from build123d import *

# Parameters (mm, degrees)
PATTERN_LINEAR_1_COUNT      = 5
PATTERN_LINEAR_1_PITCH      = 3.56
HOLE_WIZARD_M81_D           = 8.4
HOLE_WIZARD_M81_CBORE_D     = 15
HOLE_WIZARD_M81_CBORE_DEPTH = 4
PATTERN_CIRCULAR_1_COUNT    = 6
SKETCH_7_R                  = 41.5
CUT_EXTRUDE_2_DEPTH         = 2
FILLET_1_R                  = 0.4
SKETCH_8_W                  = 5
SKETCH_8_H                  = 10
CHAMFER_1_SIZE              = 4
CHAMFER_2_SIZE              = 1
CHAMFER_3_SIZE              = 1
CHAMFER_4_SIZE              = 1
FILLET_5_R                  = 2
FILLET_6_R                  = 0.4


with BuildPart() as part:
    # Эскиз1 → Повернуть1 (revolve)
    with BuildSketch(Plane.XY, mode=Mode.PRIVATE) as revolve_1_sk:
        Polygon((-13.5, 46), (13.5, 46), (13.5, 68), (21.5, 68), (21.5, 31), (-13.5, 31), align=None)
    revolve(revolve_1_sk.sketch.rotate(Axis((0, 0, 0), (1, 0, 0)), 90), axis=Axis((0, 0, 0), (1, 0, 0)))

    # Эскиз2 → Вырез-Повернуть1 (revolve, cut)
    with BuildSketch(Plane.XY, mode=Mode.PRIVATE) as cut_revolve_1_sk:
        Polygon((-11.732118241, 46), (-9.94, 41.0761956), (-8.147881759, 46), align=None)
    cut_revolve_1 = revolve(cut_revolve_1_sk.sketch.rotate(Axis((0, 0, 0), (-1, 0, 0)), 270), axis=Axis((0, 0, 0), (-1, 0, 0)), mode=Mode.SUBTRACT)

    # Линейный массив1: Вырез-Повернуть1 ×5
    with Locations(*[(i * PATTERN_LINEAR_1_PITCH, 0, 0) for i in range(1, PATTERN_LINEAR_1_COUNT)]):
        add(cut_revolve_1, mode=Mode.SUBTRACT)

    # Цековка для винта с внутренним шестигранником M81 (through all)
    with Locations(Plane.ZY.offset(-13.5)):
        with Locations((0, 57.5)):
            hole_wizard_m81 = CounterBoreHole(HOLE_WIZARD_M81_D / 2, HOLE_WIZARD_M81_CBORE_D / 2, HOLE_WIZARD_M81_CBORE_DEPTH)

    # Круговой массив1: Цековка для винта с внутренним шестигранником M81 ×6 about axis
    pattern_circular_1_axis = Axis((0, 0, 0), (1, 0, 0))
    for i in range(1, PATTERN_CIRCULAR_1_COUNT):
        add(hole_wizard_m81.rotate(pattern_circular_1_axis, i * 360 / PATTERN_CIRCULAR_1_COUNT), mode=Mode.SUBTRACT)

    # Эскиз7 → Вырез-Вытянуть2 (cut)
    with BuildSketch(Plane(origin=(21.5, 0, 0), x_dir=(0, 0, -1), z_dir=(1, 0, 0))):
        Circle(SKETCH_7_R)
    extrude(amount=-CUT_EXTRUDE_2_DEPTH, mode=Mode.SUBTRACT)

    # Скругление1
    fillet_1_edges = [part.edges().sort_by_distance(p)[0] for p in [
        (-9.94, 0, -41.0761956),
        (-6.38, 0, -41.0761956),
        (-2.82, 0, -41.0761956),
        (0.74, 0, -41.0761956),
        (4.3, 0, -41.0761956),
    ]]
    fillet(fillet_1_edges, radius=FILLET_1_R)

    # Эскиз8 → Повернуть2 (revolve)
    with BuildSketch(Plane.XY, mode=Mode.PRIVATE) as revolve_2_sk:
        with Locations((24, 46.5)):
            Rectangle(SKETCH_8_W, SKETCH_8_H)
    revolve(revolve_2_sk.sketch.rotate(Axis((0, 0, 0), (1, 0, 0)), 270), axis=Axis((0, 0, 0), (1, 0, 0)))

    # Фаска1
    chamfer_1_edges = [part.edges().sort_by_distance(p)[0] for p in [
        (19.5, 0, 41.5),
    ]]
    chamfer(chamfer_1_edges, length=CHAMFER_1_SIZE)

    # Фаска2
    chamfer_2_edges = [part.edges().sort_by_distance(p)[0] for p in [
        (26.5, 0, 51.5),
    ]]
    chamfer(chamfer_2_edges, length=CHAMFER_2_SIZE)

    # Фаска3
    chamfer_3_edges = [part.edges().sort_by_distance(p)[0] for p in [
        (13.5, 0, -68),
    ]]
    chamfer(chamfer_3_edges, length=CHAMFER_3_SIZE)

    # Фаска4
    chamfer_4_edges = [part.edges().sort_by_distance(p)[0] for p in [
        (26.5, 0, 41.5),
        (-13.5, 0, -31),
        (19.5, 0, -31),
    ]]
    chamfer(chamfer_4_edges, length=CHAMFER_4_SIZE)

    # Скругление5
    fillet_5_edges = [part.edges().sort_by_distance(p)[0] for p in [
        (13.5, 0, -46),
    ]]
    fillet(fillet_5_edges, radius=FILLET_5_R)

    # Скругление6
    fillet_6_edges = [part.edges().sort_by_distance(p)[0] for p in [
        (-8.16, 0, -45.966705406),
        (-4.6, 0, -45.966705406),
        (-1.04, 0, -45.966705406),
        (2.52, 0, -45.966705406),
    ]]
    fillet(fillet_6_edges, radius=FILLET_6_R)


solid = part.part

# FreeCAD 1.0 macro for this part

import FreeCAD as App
import Part
import Sketcher
from FreeCAD import Vector
Q = App.Units.Quantity


def edges_at(feature, points):
    """Names of the edges that pass closest to the given points."""
    edges = feature.Shape.Edges
    near = lambda p: min(range(len(edges)), key=lambda i: edges[i].distToShape(Part.Vertex(*p))[0])
    return sorted({f"Edge{near(p) + 1}" for p in points})

doc = App.newDocument("Part")
body = doc.addObject("PartDesign::Body", "Body")

sketch1 = body.newObject("Sketcher::SketchObject", "Sketch")
sketch1.AttachmentSupport = (doc.getObject("XY_Plane"), [""])
sketch1.MapMode = "FlatFace"
sketch1.addGeometry(Part.LineSegment(Vector(13.5, 46, 0), Vector(-13.5, 46, 0)), False)
sketch1.addGeometry(Part.LineSegment(Vector(-13.5, 46, 0), Vector(-13.5, 31, 0)), False)
sketch1.addGeometry(Part.LineSegment(Vector(-13.5, 31, 0), Vector(21.5, 31, 0)), False)
sketch1.addGeometry(Part.LineSegment(Vector(21.5, 31, 0), Vector(21.5, 68, 0)), False)
sketch1.addGeometry(Part.LineSegment(Vector(21.5, 68, 0), Vector(13.5, 68, 0)), False)
sketch1.addGeometry(Part.LineSegment(Vector(13.5, 68, 0), Vector(13.5, 46, 0)), False)
sketch1.addConstraint(Sketcher.Constraint("Coincident", 0, 2, 1, 1))
sketch1.addConstraint(Sketcher.Constraint("Coincident", 1, 2, 2, 1))
sketch1.addConstraint(Sketcher.Constraint("Coincident", 2, 2, 3, 1))
sketch1.addConstraint(Sketcher.Constraint("Coincident", 3, 2, 4, 1))
sketch1.addConstraint(Sketcher.Constraint("Coincident", 4, 2, 5, 1))
sketch1.addConstraint(Sketcher.Constraint("Coincident", 5, 2, 0, 1))
sketch1.addConstraint(Sketcher.Constraint("Horizontal", 0))
sketch1.addConstraint(Sketcher.Constraint("Vertical", 1))
sketch1.addConstraint(Sketcher.Constraint("Horizontal", 2))
sketch1.addConstraint(Sketcher.Constraint("Vertical", 3))
sketch1.addConstraint(Sketcher.Constraint("Horizontal", 4))
sketch1.addConstraint(Sketcher.Constraint("Vertical", 5))
sketch1.addConstraint(Sketcher.Constraint("DistanceX", 0, 2, 0, 1, Q("27 mm")))
sketch1.addConstraint(Sketcher.Constraint("DistanceX", 2, 1, 2, 2, Q("35 mm")))
sketch1.addConstraint(Sketcher.Constraint("DistanceY", 1, 2, 1, 1, Q("15 mm")))
sketch1.addConstraint(Sketcher.Constraint("DistanceY", 3, 1, 3, 2, Q("37 mm")))
sketch1.addConstraint(Sketcher.Constraint("DistanceY", -1, 1, 0, 2, Q("46 mm")))
sketch1.addConstraint(Sketcher.Constraint("DistanceX", 0, 2, -1, 1, Q("13.5 mm")))
revolution = body.newObject("PartDesign::Revolution", "Revolution")
revolution.Profile = sketch1
revolution.ReferenceAxis = (sketch1, ["H_Axis"])
revolution.Angle = 360

sketch2 = body.newObject("Sketcher::SketchObject", "Sketch001")
sketch2.AttachmentSupport = (doc.getObject("XY_Plane"), [""])
sketch2.MapMode = "FlatFace"
sketch2.addGeometry(Part.LineSegment(Vector(-11.732118, 46, 0), Vector(-9.94, 41.076196, 0)), False)
sketch2.addGeometry(Part.LineSegment(Vector(-9.94, 41.076196, 0), Vector(-8.147882, 46, 0)), False)
sketch2.addGeometry(Part.LineSegment(Vector(-8.147882, 46, 0), Vector(-11.732118, 46, 0)), False)
sketch2.addConstraint(Sketcher.Constraint("Coincident", 0, 2, 1, 1))
sketch2.addConstraint(Sketcher.Constraint("Coincident", 1, 2, 2, 1))
sketch2.addConstraint(Sketcher.Constraint("Coincident", 2, 2, 0, 1))
sketch2.addConstraint(Sketcher.Constraint("Horizontal", 2))
sketch2.addConstraint(Sketcher.Constraint("Equal", 0, 1))
sketch2.addConstraint(Sketcher.Constraint("Angle", 0, Q("-70 deg")))
sketch2.addConstraint(Sketcher.Constraint("DistanceY", -1, 1, 1, 2, Q("46 mm")))
sketch2.addConstraint(Sketcher.Constraint("DistanceX", 0, 2, -1, 1, Q("9.94 mm")))
sketch2.addConstraint(Sketcher.Constraint("DistanceX", 2, 2, 2, 1, Q("3.584236 mm")))
groove = body.newObject("PartDesign::Groove", "Groove")
groove.Profile = sketch2
groove.ReferenceAxis = (sketch2, ["H_Axis"])
groove.Angle = 360
doc.recompute()

linearpattern = body.newObject("PartDesign::LinearPattern", "LinearPattern")
linearpattern.Originals = [groove]
linearpattern.Direction = (doc.getObject("X_Axis"), [""])
linearpattern.Mode = "offset"
linearpattern.Offset = 3.56
linearpattern.Occurrences = 5
body.Tip = linearpattern

sketch3 = body.newObject("Sketcher::SketchObject", "Sketch002")
sketch3.AttachmentSupport = (doc.getObject("YZ_Plane"), [""])
sketch3.MapMode = "FlatFace"
sketch3.AttachmentOffset = App.Placement(Vector(0, 0, 13.5), App.Rotation())
sketch3.addGeometry(Part.Circle(Vector(57.5, 0, 0), Vector(0, 0, 1), 4.2), False)
sketch3.addConstraint(Sketcher.Constraint("PointOnObject", 0, 3, -1))
sketch3.addConstraint(Sketcher.Constraint("Diameter", 0, Q("8.4 mm")))
sketch3.addConstraint(Sketcher.Constraint("DistanceX", -1, 1, 0, 3, Q("57.5 mm")))
doc.recompute()
hole = body.newObject("PartDesign::Hole", "Hole")
hole.Profile = sketch3
hole.ThreadType = "None"
hole.Diameter = 8.4
hole.DepthType = "ThroughAll"
hole.HoleCutType = "Counterbore"
hole.HoleCutDiameter = 15
hole.HoleCutDepth = 4
hole.Reversed = True
doc.recompute()

polarpattern = body.newObject("PartDesign::PolarPattern", "PolarPattern")
polarpattern.Originals = [hole]
polarpattern.Axis = (doc.getObject("X_Axis"), [""])
polarpattern.Angle = 360
polarpattern.Occurrences = 6
body.Tip = polarpattern

sketch4 = body.newObject("Sketcher::SketchObject", "Sketch003")
sketch4.AttachmentSupport = (doc.getObject("YZ_Plane"), [""])
sketch4.MapMode = "FlatFace"
sketch4.AttachmentOffset = App.Placement(Vector(0, 0, 21.5), App.Rotation())
sketch4.addGeometry(Part.Circle(Vector(0, 0, 0), Vector(0, 0, 1), 41.5), False)
sketch4.addConstraint(Sketcher.Constraint("Coincident", 0, 3, -1, 1))
sketch4.addConstraint(Sketcher.Constraint("Diameter", 0, Q("83 mm")))
pocket1 = body.newObject("PartDesign::Pocket", "Pocket")
pocket1.Profile = sketch4
pocket1.Length = 2
doc.recompute()

fillet = body.newObject("PartDesign::Fillet", "Fillet")
fillet.Base = (pocket1, edges_at(pocket1, [
    (-9.94, 0, -41.076),
    (-6.38, 0, -41.076),
    (-2.82, 0, -41.076),
    (0.74, 0, -41.076),
    (4.3, 0, -41.076),
]))
fillet.Radius = 0.4

sketch5 = body.newObject("Sketcher::SketchObject", "Sketch004")
sketch5.AttachmentSupport = (doc.getObject("XY_Plane"), [""])
sketch5.MapMode = "FlatFace"
sketch5.addGeometry(Part.LineSegment(Vector(21.5, 51.5, 0), Vector(21.5, 41.5, 0)), False)
sketch5.addGeometry(Part.LineSegment(Vector(21.5, 41.5, 0), Vector(26.5, 41.5, 0)), False)
sketch5.addGeometry(Part.LineSegment(Vector(26.5, 41.5, 0), Vector(26.5, 51.5, 0)), False)
sketch5.addGeometry(Part.LineSegment(Vector(26.5, 51.5, 0), Vector(21.5, 51.5, 0)), False)
sketch5.addConstraint(Sketcher.Constraint("Coincident", 0, 2, 1, 1))
sketch5.addConstraint(Sketcher.Constraint("Coincident", 1, 2, 2, 1))
sketch5.addConstraint(Sketcher.Constraint("Coincident", 2, 2, 3, 1))
sketch5.addConstraint(Sketcher.Constraint("Coincident", 3, 2, 0, 1))
sketch5.addConstraint(Sketcher.Constraint("Vertical", 0))
sketch5.addConstraint(Sketcher.Constraint("Horizontal", 1))
sketch5.addConstraint(Sketcher.Constraint("Vertical", 2))
sketch5.addConstraint(Sketcher.Constraint("Horizontal", 3))
sketch5.addConstraint(Sketcher.Constraint("DistanceX", 1, 1, 1, 2, Q("5 mm")))
sketch5.addConstraint(Sketcher.Constraint("DistanceY", 0, 2, 0, 1, Q("10 mm")))
sketch5.addConstraint(Sketcher.Constraint("DistanceX", -1, 1, 0, 2, Q("21.5 mm")))
sketch5.addConstraint(Sketcher.Constraint("DistanceY", -1, 1, 0, 2, Q("41.5 mm")))
revolution2 = body.newObject("PartDesign::Revolution", "Revolution001")
revolution2.Profile = sketch5
revolution2.ReferenceAxis = (sketch5, ["H_Axis"])
revolution2.Angle = 360
doc.recompute()

chamfer = body.newObject("PartDesign::Chamfer", "Chamfer")
chamfer.Base = (revolution2, edges_at(revolution2, [(19.5, 0, 41.5)]))
chamfer.Size = 4
doc.recompute()

chamfer2 = body.newObject("PartDesign::Chamfer", "Chamfer001")
chamfer2.Base = (chamfer, edges_at(chamfer, [(26.5, 0, 51.5)]))
chamfer2.Size = 1
doc.recompute()

chamfer3 = body.newObject("PartDesign::Chamfer", "Chamfer002")
chamfer3.Base = (chamfer2, edges_at(chamfer2, [(13.5, 0, -68)]))
chamfer3.Size = 1
doc.recompute()

chamfer4 = body.newObject("PartDesign::Chamfer", "Chamfer003")
chamfer4.Base = (chamfer3, edges_at(chamfer3, [(26.5, 0, 41.5), (-13.5, 0, -31), (19.5, 0, -31)]))
chamfer4.Size = 1
doc.recompute()

fillet2 = body.newObject("PartDesign::Fillet", "Fillet001")
fillet2.Base = (chamfer4, edges_at(chamfer4, [(13.5, 0, -46)]))
fillet2.Radius = 2
doc.recompute()

fillet3 = body.newObject("PartDesign::Fillet", "Fillet002")
fillet3.Base = (fillet2, edges_at(fillet2, [
    (-8.16, 0, -45.967),
    (-4.6, 0, -45.967),
    (-1.04, 0, -45.967),
    (2.52, 0, -45.967),
]))
fillet3.Radius = 0.4

doc.recompute()
